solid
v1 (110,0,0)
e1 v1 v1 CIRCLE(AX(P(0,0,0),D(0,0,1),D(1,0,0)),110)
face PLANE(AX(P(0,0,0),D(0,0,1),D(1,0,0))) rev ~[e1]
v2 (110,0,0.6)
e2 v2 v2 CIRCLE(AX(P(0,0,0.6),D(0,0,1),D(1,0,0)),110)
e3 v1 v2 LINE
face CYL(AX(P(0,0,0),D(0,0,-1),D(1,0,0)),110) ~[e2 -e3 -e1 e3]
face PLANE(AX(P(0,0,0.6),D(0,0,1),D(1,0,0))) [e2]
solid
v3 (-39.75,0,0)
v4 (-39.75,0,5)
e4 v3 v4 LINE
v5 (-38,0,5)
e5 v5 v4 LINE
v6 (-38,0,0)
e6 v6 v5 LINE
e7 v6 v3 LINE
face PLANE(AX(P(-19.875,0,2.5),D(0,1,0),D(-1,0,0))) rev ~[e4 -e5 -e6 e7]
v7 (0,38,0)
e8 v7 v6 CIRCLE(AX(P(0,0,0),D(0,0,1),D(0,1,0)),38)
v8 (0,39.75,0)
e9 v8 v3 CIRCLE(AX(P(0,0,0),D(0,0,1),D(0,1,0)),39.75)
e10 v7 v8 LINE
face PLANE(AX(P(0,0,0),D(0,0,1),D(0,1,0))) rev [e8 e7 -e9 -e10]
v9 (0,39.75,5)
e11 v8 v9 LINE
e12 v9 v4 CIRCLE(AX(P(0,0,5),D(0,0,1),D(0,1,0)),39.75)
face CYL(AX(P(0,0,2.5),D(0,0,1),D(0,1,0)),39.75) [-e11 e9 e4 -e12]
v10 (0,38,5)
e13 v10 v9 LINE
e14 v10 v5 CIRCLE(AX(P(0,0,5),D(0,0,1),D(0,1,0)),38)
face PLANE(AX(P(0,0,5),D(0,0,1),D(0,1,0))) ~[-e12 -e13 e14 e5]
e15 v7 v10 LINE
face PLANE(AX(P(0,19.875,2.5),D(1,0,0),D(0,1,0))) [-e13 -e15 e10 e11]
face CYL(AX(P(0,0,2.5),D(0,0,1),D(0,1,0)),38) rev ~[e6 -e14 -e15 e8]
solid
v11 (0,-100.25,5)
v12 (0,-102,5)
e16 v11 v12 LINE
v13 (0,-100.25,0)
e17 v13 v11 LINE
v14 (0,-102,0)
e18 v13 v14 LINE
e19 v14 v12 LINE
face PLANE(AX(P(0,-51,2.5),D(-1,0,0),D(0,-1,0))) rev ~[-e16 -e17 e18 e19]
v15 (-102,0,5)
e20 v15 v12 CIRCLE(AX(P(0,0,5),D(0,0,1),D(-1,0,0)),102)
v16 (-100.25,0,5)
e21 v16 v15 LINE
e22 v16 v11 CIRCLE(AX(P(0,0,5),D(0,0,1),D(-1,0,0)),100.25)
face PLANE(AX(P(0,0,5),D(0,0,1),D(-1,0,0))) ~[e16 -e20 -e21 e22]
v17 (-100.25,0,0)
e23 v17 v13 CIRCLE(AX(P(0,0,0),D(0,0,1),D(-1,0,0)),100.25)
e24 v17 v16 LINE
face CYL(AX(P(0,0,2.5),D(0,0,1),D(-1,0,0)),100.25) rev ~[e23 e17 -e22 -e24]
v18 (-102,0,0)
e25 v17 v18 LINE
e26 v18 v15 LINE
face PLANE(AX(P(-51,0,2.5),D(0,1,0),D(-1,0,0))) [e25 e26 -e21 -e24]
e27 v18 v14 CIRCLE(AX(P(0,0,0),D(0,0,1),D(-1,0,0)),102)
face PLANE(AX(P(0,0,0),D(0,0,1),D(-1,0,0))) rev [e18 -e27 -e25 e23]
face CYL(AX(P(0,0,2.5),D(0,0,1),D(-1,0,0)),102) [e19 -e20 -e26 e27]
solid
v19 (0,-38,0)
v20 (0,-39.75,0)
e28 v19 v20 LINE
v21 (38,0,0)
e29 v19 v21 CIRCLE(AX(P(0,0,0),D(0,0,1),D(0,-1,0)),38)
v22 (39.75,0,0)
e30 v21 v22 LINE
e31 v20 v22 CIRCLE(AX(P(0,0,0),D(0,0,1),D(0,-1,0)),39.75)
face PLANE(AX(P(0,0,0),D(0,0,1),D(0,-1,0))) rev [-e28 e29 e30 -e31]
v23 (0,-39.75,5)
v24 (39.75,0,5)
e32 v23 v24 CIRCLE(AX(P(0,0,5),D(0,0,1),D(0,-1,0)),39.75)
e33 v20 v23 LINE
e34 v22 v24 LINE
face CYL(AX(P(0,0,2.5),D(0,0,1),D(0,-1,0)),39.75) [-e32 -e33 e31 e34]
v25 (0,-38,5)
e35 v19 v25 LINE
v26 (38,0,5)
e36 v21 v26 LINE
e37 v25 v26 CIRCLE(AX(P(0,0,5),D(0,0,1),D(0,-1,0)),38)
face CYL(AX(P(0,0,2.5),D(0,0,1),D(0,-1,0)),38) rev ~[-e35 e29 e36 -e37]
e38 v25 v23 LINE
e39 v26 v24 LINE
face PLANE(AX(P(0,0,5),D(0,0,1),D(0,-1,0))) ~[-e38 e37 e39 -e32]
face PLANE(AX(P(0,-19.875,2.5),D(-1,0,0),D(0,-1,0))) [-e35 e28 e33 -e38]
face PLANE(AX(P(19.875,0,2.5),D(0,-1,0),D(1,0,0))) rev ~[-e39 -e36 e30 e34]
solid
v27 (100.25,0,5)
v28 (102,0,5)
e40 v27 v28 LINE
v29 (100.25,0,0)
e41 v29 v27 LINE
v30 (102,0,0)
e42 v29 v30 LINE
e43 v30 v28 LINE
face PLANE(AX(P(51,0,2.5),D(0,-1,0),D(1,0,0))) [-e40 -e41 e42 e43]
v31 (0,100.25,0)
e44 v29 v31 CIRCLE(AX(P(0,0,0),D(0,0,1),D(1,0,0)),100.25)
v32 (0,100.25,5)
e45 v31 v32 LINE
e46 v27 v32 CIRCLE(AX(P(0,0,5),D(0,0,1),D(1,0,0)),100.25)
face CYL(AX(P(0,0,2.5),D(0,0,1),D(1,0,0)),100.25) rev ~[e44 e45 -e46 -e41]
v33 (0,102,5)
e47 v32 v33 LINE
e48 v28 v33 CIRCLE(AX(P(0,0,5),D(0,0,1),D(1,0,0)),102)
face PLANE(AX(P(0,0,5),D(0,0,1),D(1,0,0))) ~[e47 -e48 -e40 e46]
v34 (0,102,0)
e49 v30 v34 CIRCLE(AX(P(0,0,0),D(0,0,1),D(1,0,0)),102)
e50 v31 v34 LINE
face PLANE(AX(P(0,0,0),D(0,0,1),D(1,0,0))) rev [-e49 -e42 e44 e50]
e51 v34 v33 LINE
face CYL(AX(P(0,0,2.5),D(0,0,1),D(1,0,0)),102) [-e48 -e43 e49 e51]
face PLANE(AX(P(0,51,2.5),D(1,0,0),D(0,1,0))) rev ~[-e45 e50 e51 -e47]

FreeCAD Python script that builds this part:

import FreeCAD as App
import Part
import Sketcher

V = App.Vector
Q = App.Units.Quantity


def add_polygon(sketch, points):
    """Adds a closed chain of lines whose ends are joined by coincident constraints."""
    first, n = sketch.GeometryCount, len(points)
    for a, b in zip(points, points[1:] + points[:1]):
        sketch.addGeometry(Part.LineSegment(App.Vector(*a, 0), App.Vector(*b, 0)), False)
    for i in range(n):
        sketch.addConstraint(Sketcher.Constraint("Coincident", first + i, 2, first + (i + 1) % n, 1))

doc = App.newDocument("Part")
body = doc.addObject("PartDesign::Body", "Body")

# Sketch on XY plane
sketch1 = body.newObject("Sketcher::SketchObject", "Sketch")
sketch1.AttachmentSupport = (doc.getObject("XY_Plane"), [""])
sketch1.MapMode = "FlatFace"
sketch1.addGeometry(Part.Circle(V(0, 0, 0), V(0, 0, 1), 110), False)
sketch1.addConstraint([
    Sketcher.Constraint("Coincident", 0, 3, -1, 1),
    Sketcher.Constraint("Diameter", 0, Q("220 mm")),
])
pad1 = body.newObject("PartDesign::Pad", "Pad")
pad1.Profile = sketch1
pad1.Length = 0.6
body2 = doc.addObject("PartDesign::Body", "Body001")

# Sketch on XZ plane
sketch2 = body2.newObject("Sketcher::SketchObject", "Sketch001")
sketch2.AttachmentSupport = (doc.getObject("XZ_Plane001"), [""])
sketch2.MapMode = "FlatFace"
add_polygon(sketch2, [(0, 5), (0, 0), (100, 0), (100, 5)])  # lines 0-3
sketch2.addConstraint([
    Sketcher.Constraint("Vertical", 0),
    Sketcher.Constraint("Horizontal", 1),
    Sketcher.Constraint("Vertical", 2),
    Sketcher.Constraint("Horizontal", 3),
    Sketcher.Constraint("Coincident", 0, 2, -1, 1),
    Sketcher.Constraint("DistanceY", 0, 2, 0, 1, Q("5 mm")),
    Sketcher.Constraint("DistanceX", 1, 1, 1, 2, Q("100.25 mm")),
])
revolution = body2.newObject("PartDesign::Revolution", "Revolution")
revolution.Profile = sketch2
revolution.ReferenceAxis = (sketch2, ["V_Axis"])
revolution.Angle = 90
body3 = doc.addObject("PartDesign::Body", "Body002")

# Sketch on XZ plane
sketch3 = body3.newObject("Sketcher::SketchObject", "Sketch002")
sketch3.AttachmentSupport = (doc.getObject("XZ_Plane002"), [""])
sketch3.MapMode = "FlatFace"
add_polygon(sketch3, [(0, 5), (0, 0), (102, 0), (102, 5)])  # lines 0-3
sketch3.addConstraint([
    Sketcher.Constraint("Vertical", 0),
    Sketcher.Constraint("Horizontal", 1),
    Sketcher.Constraint("Vertical", 2),
    Sketcher.Constraint("Horizontal", 3),
    Sketcher.Constraint("Coincident", 0, 2, -1, 1),
    Sketcher.Constraint("DistanceX", 1, 1, 1, 2, Q("102 mm")),
    Sketcher.Constraint("DistanceY", 0, 2, 0, 1, Q("5 mm")),
])
revolution2 = body3.newObject("PartDesign::Revolution", "Revolution001")
revolution2.Profile = sketch3
revolution2.ReferenceAxis = (sketch3, ["V_Axis"])
revolution2.Angle = 90
doc.recompute()

boolean = body3.newObject("PartDesign::Boolean", "Boolean")
boolean.Type = "Cut"
boolean.addObjects([body2])
body4 = doc.addObject("PartDesign::Body", "Body003")

# Sketch on XZ plane
sketch4 = body4.newObject("Sketcher::SketchObject", "Sketch003")
sketch4.AttachmentSupport = (doc.getObject("XZ_Plane003"), [""])
sketch4.MapMode = "FlatFace"
add_polygon(sketch4, [(0, 5), (0, 0), (38, 0), (38, 5)])  # lines 0-3
sketch4.addConstraint([
    Sketcher.Constraint("Vertical", 0),
    Sketcher.Constraint("Horizontal", 1),
    Sketcher.Constraint("Vertical", 2),
    Sketcher.Constraint("Horizontal", 3),
    Sketcher.Constraint("Coincident", 0, 2, -1, 1),
    Sketcher.Constraint("DistanceX", 1, 1, 1, 2, Q("38 mm")),
    Sketcher.Constraint("DistanceY", 0, 2, 0, 1, Q("5 mm")),
])
revolution3 = body4.newObject("PartDesign::Revolution", "Revolution002")
revolution3.Profile = sketch4
revolution3.ReferenceAxis = (sketch4, ["V_Axis"])
revolution3.Angle = 90
body5 = doc.addObject("PartDesign::Body", "Body004")

# Sketch on XZ plane
sketch5 = body5.newObject("Sketcher::SketchObject", "Sketch004")
sketch5.AttachmentSupport = (doc.getObject("XZ_Plane004"), [""])
sketch5.MapMode = "FlatFace"
add_polygon(sketch5, [(0, 5), (0, 0), (40, 0), (40, 5)])  # lines 0-3
sketch5.addConstraint([
    Sketcher.Constraint("Vertical", 0),
    Sketcher.Constraint("Horizontal", 1),
    Sketcher.Constraint("Vertical", 2),
    Sketcher.Constraint("Horizontal", 3),
    Sketcher.Constraint("Coincident", 0, 2, -1, 1),
    Sketcher.Constraint("DistanceY", 0, 2, 0, 1, Q("5 mm")),
    Sketcher.Constraint("DistanceX", 1, 1, 1, 2, Q("39.75 mm")),
])
revolution4 = body5.newObject("PartDesign::Revolution", "Revolution003")
revolution4.Profile = sketch5
revolution4.ReferenceAxis = (sketch5, ["V_Axis"])
revolution4.Angle = 90
doc.recompute()

boolean2 = body5.newObject("PartDesign::Boolean", "Boolean001")
boolean2.Type = "Cut"
boolean2.addObjects([body4])
body6 = doc.addObject("PartDesign::Body", "Body005")
doc.recompute()

body5.Placement = App.Placement(V(0, 0, 0), App.Rotation(V(0, 0, 1), 90))
boolean3 = body6.newObject("PartDesign::Boolean", "Boolean002")
boolean3.Type = "Fuse"
boolean3.addObjects([body5])
body7 = doc.addObject("PartDesign::Body", "Body006")

# Sketch on XZ plane
sketch6 = body7.newObject("Sketcher::SketchObject", "Sketch005")
sketch6.AttachmentSupport = (doc.getObject("XZ_Plane006"), [""])
sketch6.MapMode = "FlatFace"
add_polygon(sketch6, [(0, 5), (0, 0), (100, 0), (100, 5)])  # lines 0-3
sketch6.addConstraint([
    Sketcher.Constraint("Vertical", 0),
    Sketcher.Constraint("Horizontal", 1),
    Sketcher.Constraint("Vertical", 2),
    Sketcher.Constraint("Horizontal", 3),
    Sketcher.Constraint("Coincident", 0, 2, -1, 1),
    Sketcher.Constraint("DistanceY", 0, 2, 0, 1, Q("5 mm")),
    Sketcher.Constraint("DistanceX", 1, 1, 1, 2, Q("100.25 mm")),
])
revolution5 = body7.newObject("PartDesign::Revolution", "Revolution004")
revolution5.Profile = sketch6
revolution5.ReferenceAxis = (sketch6, ["V_Axis"])
revolution5.Angle = 90
body8 = doc.addObject("PartDesign::Body", "Body007")

# Sketch on XZ plane
sketch7 = body8.newObject("Sketcher::SketchObject", "Sketch006")
sketch7.AttachmentSupport = (doc.getObject("XZ_Plane007"), [""])
sketch7.MapMode = "FlatFace"
add_polygon(sketch7, [(0, 5), (0, 0), (102, 0), (102, 5)])  # lines 0-3
sketch7.addConstraint([
    Sketcher.Constraint("Vertical", 0),
    Sketcher.Constraint("Horizontal", 1),
    Sketcher.Constraint("Vertical", 2),
    Sketcher.Constraint("Horizontal", 3),
    Sketcher.Constraint("Coincident", 0, 2, -1, 1),
    Sketcher.Constraint("DistanceX", 1, 1, 1, 2, Q("102 mm")),
    Sketcher.Constraint("DistanceY", 0, 2, 0, 1, Q("5 mm")),
])
revolution6 = body8.newObject("PartDesign::Revolution", "Revolution005")
revolution6.Profile = sketch7
revolution6.ReferenceAxis = (sketch7, ["V_Axis"])
revolution6.Angle = 90
doc.recompute()

boolean4 = body8.newObject("PartDesign::Boolean", "Boolean003")
boolean4.Type = "Cut"
boolean4.addObjects([body7])
body9 = doc.addObject("PartDesign::Body", "Body008")
doc.recompute()

body8.Placement = App.Placement(V(0, 0, 0), App.Rotation(V(0, 0, 1), 180))
boolean5 = body9.newObject("PartDesign::Boolean", "Boolean004")
boolean5.Type = "Fuse"
boolean5.addObjects([body8])
body10 = doc.addObject("PartDesign::Body", "Body009")

# Sketch on XZ plane
sketch8 = body10.newObject("Sketcher::SketchObject", "Sketch007")
sketch8.AttachmentSupport = (doc.getObject("XZ_Plane009"), [""])
sketch8.MapMode = "FlatFace"
add_polygon(sketch8, [(0, 5), (0, 0), (38, 0), (38, 5)])  # lines 0-3
sketch8.addConstraint([
    Sketcher.Constraint("Vertical", 0),
    Sketcher.Constraint("Horizontal", 1),
    Sketcher.Constraint("Vertical", 2),
    Sketcher.Constraint("Horizontal", 3),
    Sketcher.Constraint("Coincident", 0, 2, -1, 1),
    Sketcher.Constraint("DistanceX", 1, 1, 1, 2, Q("38 mm")),
    Sketcher.Constraint("DistanceY", 0, 2, 0, 1, Q("5 mm")),
])
revolution7 = body10.newObject("PartDesign::Revolution", "Revolution006")
revolution7.Profile = sketch8
revolution7.ReferenceAxis = (sketch8, ["V_Axis"])
revolution7.Angle = 90
body11 = doc.addObject("PartDesign::Body", "Body010")

# Sketch on XZ plane
sketch9 = body11.newObject("Sketcher::SketchObject", "Sketch008")
sketch9.AttachmentSupport = (doc.getObject("XZ_Plane010"), [""])
sketch9.MapMode = "FlatFace"
add_polygon(sketch9, [(0, 5), (0, 0), (40, 0), (40, 5)])  # lines 0-3
sketch9.addConstraint([
    Sketcher.Constraint("Vertical", 0),
    Sketcher.Constraint("Horizontal", 1),
    Sketcher.Constraint("Vertical", 2),
    Sketcher.Constraint("Horizontal", 3),
    Sketcher.Constraint("Coincident", 0, 2, -1, 1),
    Sketcher.Constraint("DistanceY", 0, 2, 0, 1, Q("5 mm")),
    Sketcher.Constraint("DistanceX", 1, 1, 1, 2, Q("39.75 mm")),
])
revolution8 = body11.newObject("PartDesign::Revolution", "Revolution007")
revolution8.Profile = sketch9
revolution8.ReferenceAxis = (sketch9, ["V_Axis"])
revolution8.Angle = 90
doc.recompute()

boolean6 = body11.newObject("PartDesign::Boolean", "Boolean005")
boolean6.Type = "Cut"
boolean6.addObjects([body10])
body12 = doc.addObject("PartDesign::Body", "Body011")
doc.recompute()

body11.Placement = App.Placement(V(0, 0, 0), App.Rotation(V(0, 0, 1), 270))
boolean7 = body12.newObject("PartDesign::Boolean", "Boolean006")
boolean7.Type = "Fuse"
boolean7.addObjects([body11])

doc.recompute()
